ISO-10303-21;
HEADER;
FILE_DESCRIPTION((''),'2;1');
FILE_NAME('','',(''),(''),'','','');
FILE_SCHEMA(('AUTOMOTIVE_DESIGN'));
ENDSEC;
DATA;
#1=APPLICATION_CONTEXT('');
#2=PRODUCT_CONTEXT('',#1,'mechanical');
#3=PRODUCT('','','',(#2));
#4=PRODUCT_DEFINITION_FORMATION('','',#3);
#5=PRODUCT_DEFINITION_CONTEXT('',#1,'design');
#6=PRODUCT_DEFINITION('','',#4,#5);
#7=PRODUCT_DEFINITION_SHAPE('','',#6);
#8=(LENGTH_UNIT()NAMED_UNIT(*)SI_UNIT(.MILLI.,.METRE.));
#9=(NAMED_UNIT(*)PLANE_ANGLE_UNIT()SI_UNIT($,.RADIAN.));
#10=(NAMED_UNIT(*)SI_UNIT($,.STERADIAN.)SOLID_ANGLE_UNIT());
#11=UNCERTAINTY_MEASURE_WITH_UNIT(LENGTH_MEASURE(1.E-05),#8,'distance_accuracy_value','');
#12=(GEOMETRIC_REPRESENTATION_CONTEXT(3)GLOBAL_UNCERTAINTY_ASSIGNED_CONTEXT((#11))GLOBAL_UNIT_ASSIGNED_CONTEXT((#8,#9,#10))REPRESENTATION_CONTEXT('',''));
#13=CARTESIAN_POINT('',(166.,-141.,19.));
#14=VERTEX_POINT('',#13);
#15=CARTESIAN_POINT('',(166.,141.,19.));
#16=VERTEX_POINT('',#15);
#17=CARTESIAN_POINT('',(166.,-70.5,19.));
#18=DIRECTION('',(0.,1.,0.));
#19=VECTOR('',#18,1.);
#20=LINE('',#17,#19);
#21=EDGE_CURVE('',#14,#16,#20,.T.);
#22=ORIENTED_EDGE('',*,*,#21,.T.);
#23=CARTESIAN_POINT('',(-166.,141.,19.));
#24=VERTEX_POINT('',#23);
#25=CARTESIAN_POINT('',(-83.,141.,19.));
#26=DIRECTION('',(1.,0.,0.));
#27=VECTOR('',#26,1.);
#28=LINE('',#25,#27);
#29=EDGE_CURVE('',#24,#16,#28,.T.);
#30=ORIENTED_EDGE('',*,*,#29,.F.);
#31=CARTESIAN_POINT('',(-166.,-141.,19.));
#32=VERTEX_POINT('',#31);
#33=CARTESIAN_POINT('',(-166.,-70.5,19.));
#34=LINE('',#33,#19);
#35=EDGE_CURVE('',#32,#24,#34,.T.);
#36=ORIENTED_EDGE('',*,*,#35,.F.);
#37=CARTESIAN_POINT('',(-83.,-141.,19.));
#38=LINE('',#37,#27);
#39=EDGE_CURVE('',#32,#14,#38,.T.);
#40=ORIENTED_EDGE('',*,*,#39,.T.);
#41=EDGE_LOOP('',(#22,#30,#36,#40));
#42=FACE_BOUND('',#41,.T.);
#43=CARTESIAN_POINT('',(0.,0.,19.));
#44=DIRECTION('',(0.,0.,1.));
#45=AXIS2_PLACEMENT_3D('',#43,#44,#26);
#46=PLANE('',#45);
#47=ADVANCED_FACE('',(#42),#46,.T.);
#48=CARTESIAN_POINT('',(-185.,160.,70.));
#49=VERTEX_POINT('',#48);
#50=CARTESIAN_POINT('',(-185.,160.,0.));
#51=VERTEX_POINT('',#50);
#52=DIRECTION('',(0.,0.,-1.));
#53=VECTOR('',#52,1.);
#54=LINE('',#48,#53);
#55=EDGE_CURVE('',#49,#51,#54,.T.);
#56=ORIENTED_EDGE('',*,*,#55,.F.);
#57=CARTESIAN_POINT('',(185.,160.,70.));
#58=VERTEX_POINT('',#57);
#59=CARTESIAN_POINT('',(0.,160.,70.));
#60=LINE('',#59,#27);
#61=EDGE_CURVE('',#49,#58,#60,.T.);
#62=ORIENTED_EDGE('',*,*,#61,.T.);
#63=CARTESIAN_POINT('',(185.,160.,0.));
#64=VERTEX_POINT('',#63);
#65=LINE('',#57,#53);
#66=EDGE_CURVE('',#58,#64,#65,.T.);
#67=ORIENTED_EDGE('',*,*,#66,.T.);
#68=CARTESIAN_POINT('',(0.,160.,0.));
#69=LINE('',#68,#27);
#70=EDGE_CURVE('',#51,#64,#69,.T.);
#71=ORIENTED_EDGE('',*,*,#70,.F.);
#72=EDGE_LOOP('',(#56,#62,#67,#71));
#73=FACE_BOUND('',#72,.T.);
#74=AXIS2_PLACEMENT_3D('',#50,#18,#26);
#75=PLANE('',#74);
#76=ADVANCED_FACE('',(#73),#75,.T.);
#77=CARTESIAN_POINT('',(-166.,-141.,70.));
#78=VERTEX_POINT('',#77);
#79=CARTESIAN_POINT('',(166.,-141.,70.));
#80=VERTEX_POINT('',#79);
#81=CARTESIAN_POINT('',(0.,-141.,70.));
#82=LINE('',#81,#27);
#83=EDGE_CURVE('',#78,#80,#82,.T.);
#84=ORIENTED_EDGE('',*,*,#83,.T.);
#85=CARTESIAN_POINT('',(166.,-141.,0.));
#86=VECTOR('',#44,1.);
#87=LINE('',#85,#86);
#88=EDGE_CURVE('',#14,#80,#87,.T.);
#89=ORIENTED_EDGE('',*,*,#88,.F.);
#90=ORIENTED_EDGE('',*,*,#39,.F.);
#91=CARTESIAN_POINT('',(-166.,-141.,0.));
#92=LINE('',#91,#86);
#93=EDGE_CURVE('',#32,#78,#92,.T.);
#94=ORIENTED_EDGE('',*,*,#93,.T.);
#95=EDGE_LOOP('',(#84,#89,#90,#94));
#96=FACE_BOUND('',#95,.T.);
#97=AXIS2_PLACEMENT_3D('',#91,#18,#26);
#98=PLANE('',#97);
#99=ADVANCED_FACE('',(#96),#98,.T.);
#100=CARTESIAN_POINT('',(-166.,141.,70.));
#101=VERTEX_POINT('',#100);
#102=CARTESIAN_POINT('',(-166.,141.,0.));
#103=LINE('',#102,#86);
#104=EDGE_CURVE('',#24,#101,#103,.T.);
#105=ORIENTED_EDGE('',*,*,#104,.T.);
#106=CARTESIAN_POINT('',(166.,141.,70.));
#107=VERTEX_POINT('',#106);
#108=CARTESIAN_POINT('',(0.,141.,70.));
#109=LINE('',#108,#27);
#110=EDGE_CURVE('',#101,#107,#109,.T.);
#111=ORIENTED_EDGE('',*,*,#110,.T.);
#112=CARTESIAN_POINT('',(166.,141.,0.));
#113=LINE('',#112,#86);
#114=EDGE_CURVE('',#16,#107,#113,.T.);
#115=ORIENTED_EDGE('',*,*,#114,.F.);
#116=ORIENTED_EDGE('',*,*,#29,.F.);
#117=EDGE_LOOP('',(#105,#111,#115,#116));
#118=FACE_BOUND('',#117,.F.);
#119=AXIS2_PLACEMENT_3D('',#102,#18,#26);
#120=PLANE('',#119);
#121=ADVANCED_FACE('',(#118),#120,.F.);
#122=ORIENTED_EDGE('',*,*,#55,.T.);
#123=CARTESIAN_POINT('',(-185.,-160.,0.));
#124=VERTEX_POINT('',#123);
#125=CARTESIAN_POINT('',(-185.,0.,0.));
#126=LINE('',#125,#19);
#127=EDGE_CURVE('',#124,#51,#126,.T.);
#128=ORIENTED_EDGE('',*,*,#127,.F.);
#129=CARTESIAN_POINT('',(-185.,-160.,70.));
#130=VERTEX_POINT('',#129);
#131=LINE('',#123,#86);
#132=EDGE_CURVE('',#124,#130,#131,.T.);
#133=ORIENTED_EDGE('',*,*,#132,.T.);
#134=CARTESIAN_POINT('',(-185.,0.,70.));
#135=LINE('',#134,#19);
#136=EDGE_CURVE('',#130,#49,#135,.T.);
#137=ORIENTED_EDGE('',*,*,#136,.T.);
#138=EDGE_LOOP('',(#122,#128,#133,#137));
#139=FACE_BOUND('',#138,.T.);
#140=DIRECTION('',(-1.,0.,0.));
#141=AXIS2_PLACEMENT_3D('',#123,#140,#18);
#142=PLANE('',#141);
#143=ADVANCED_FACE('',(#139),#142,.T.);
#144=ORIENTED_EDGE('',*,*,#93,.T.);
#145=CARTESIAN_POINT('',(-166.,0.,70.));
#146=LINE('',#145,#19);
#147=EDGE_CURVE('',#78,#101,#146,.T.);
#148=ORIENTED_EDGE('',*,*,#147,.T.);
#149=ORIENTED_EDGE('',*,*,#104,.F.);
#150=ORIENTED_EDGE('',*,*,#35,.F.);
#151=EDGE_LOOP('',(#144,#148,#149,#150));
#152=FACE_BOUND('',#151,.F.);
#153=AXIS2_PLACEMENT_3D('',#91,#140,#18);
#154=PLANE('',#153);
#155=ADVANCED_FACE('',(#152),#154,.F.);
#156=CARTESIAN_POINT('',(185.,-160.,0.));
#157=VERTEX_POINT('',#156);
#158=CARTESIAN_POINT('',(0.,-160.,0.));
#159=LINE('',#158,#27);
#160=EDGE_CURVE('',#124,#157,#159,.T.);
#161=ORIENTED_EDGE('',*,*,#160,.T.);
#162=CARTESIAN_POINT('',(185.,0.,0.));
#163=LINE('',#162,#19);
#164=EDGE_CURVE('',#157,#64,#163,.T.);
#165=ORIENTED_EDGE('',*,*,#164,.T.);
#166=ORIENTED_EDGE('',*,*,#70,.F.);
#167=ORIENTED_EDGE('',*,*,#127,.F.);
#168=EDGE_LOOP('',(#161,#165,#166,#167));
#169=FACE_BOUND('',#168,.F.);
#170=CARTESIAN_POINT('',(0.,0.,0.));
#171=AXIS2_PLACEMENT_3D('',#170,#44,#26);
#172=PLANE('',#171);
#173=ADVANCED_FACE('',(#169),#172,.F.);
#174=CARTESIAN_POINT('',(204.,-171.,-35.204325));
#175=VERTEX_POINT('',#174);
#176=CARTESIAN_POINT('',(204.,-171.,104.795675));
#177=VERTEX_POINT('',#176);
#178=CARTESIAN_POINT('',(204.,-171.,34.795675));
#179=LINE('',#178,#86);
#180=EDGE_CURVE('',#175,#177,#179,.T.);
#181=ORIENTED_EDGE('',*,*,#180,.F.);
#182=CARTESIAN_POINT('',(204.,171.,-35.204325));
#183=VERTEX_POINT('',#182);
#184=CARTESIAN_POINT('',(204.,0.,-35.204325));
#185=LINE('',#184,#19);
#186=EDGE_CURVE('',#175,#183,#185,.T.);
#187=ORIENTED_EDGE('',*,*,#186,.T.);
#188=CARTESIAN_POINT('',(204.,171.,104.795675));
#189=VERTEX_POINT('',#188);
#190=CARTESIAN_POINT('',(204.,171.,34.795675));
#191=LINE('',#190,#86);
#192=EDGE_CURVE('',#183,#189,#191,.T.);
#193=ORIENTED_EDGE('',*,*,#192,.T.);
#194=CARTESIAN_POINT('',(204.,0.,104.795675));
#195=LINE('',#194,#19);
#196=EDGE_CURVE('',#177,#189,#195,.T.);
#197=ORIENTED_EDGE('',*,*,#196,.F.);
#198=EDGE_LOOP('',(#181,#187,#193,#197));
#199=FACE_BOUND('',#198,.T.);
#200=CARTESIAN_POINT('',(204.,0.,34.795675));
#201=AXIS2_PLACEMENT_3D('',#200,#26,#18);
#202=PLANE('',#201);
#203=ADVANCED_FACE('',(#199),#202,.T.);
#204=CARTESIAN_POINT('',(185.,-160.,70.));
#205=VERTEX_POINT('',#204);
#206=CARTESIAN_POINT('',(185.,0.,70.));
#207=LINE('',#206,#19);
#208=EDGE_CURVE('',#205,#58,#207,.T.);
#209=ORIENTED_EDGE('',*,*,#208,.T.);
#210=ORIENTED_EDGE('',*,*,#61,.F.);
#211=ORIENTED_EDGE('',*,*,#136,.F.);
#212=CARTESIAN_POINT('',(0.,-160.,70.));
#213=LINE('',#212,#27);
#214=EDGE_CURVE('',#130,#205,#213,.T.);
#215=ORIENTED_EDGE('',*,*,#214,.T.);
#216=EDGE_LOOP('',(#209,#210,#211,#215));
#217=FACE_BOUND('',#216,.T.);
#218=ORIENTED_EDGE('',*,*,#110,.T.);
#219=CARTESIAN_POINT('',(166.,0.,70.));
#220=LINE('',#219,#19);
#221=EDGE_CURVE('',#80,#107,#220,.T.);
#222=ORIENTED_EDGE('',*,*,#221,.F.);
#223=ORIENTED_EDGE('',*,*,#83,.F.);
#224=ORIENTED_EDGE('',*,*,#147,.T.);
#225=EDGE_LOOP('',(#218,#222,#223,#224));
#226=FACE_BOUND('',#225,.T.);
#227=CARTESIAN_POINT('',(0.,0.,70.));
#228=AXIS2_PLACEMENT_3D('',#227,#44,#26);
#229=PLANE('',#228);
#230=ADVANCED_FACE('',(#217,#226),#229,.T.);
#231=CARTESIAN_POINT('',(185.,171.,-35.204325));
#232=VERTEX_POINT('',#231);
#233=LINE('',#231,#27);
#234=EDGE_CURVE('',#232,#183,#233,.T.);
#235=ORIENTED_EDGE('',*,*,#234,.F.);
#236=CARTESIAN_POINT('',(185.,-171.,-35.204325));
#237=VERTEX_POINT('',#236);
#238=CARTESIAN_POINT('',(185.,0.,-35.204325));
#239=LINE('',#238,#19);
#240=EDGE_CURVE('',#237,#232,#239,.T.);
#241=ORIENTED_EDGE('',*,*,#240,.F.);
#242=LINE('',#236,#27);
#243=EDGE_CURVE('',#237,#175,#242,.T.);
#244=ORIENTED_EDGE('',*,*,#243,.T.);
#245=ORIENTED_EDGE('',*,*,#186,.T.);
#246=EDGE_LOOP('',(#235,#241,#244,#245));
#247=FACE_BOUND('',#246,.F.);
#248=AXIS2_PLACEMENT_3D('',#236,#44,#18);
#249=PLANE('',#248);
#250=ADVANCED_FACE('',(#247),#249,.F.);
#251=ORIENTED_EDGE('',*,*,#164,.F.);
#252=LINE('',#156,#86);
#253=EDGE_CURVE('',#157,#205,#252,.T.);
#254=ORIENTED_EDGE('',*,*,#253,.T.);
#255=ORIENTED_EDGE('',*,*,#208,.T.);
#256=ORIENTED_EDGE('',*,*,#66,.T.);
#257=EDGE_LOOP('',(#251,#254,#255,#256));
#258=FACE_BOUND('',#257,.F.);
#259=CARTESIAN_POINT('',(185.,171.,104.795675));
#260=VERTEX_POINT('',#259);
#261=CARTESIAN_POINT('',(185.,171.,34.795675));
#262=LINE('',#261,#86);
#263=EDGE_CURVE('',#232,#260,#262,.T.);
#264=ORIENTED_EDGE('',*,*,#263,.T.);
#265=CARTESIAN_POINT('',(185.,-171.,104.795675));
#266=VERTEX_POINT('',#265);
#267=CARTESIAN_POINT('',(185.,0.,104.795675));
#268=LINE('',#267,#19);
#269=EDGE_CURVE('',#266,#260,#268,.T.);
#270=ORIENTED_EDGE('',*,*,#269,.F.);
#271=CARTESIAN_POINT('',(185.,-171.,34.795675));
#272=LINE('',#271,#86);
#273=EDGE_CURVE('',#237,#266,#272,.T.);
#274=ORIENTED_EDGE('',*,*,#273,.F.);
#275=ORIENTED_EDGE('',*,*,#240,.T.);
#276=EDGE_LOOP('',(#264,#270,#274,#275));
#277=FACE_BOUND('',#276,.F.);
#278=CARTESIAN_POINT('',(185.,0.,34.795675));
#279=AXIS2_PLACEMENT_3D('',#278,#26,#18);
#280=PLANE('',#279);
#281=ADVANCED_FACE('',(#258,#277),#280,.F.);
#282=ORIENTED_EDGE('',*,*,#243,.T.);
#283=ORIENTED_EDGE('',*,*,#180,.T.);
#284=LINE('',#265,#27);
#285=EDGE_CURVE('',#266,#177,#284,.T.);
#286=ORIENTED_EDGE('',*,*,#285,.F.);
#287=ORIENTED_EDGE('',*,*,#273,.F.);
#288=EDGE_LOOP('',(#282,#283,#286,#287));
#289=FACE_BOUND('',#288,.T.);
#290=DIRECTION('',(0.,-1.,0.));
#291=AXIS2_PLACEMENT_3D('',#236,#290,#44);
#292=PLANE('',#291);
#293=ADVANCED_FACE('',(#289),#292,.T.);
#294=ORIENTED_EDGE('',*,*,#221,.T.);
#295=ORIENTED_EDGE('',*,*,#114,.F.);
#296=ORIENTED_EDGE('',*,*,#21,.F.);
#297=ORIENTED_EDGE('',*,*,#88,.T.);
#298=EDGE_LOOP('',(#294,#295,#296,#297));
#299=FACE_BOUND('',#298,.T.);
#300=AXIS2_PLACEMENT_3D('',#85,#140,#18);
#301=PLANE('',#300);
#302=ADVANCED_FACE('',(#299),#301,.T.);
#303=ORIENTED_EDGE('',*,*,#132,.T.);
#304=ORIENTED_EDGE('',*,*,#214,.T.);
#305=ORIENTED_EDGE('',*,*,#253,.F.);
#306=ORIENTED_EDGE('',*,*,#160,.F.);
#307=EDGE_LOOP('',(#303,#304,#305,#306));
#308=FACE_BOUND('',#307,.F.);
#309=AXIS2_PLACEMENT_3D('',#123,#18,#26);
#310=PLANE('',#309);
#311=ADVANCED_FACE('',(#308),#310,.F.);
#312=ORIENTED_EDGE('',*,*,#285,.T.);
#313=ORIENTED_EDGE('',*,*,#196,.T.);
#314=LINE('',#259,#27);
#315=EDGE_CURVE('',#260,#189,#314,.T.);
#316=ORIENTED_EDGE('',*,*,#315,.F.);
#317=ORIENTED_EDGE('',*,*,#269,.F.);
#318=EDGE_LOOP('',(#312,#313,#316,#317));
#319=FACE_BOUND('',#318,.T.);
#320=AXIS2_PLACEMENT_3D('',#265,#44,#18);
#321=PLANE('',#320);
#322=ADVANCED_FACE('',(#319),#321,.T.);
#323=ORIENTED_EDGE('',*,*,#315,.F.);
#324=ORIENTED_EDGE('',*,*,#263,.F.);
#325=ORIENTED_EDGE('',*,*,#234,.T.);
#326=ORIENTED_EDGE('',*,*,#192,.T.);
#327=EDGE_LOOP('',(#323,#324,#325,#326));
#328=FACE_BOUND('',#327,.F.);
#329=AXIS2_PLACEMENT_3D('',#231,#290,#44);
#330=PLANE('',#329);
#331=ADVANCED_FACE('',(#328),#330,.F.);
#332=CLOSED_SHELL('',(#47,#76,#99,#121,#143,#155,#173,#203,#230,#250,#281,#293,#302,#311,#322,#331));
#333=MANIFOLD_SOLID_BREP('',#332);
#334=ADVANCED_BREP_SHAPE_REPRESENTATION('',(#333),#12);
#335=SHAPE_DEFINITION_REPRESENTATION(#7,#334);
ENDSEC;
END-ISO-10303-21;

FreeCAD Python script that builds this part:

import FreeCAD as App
import Part
import Sketcher
from FreeCAD import Vector


def add_polygon(sketch, points):
    """Adds a closed chain of lines whose ends are joined by coincident constraints."""
    first, n = sketch.GeometryCount, len(points)
    for a, b in zip(points, points[1:] + points[:1]):
        sketch.addGeometry(Part.LineSegment(App.Vector(*a, 0), App.Vector(*b, 0)), False)
    for i in range(n):
        sketch.addConstraint(Sketcher.Constraint("Coincident", first + i, 2, first + (i + 1) % n, 1))

doc = App.newDocument("Part")
body = doc.addObject("PartDesign::Body", "Body")

# Sketch on XY plane
sketch1 = body.newObject("Sketcher::SketchObject", "Sketch")
sketch1.AttachmentSupport = (doc.getObject("XY_Plane"), [""])
sketch1.MapMode = "FlatFace"
add_polygon(sketch1, [(-185, 160), (-185, -160), (185, -160), (185, 160)])  # lines 0-3
add_polygon(sketch1, [(166, -141), (-166, -141), (-166, 141), (166, 141)])  # lines 4-7
sketch1.addConstraint(Sketcher.Constraint("Vertical", 0))
sketch1.addConstraint(Sketcher.Constraint("Horizontal", 1))
sketch1.addConstraint(Sketcher.Constraint("Vertical", 2))
sketch1.addConstraint(Sketcher.Constraint("Horizontal", 3))
sketch1.addConstraint(Sketcher.Constraint("Horizontal", 4))
sketch1.addConstraint(Sketcher.Constraint("Vertical", 5))
sketch1.addConstraint(Sketcher.Constraint("Horizontal", 6))
sketch1.addConstraint(Sketcher.Constraint("Vertical", 7))
sketch1.addConstraint(Sketcher.Constraint("Symmetric", 0, 2, 2, 2, -1, 1))
sketch1.addConstraint(Sketcher.Constraint("Symmetric", 4, 2, 6, 2, -1, 1))
sketch1.addConstraint(Sketcher.Constraint("DistanceX", 1, 1, 1, 2, 370.0))
sketch1.addConstraint(Sketcher.Constraint("DistanceX", 4, 2, 4, 1, 332.0))
sketch1.addConstraint(Sketcher.Constraint("DistanceY", 0, 2, 0, 1, 320.0))
sketch1.addConstraint(Sketcher.Constraint("DistanceY", 5, 1, 5, 2, 282.0))
pad1 = body.newObject("PartDesign::Pad", "Pad")
pad1.Profile = sketch1
pad1.Length = 70

# Sketch on XY plane
sketch2 = body.newObject("Sketcher::SketchObject", "Sketch001")
sketch2.AttachmentSupport = (doc.getObject("XY_Plane"), [""])
sketch2.MapMode = "FlatFace"
add_polygon(sketch2, [(-185, 160), (-185, -160), (185, -160), (185, 160)])  # lines 0-3
sketch2.addConstraint(Sketcher.Constraint("Vertical", 0))
sketch2.addConstraint(Sketcher.Constraint("Horizontal", 1))
sketch2.addConstraint(Sketcher.Constraint("Vertical", 2))
sketch2.addConstraint(Sketcher.Constraint("Horizontal", 3))
sketch2.addConstraint(Sketcher.Constraint("Symmetric", 0, 2, 2, 2, -1, 1))
sketch2.addConstraint(Sketcher.Constraint("DistanceX", 1, 1, 1, 2, 370.0))
sketch2.addConstraint(Sketcher.Constraint("DistanceY", 0, 2, 0, 1, 320.0))
pad2 = body.newObject("PartDesign::Pad", "Pad001")
pad2.Profile = sketch2
pad2.Length = 19

# Sketch on YZ plane
sketch3 = body.newObject("Sketcher::SketchObject", "Sketch002")
sketch3.AttachmentSupport = (doc.getObject("YZ_Plane"), [""])
sketch3.MapMode = "FlatFace"
sketch3.AttachmentOffset = App.Placement(Vector(0, 0, 185), App.Rotation())
add_polygon(sketch3, [(-171, 105), (-171, -35), (171, -35), (171, 105)])  # lines 0-3
sketch3.addConstraint(Sketcher.Constraint("Vertical", 0))
sketch3.addConstraint(Sketcher.Constraint("Horizontal", 1))
sketch3.addConstraint(Sketcher.Constraint("Vertical", 2))
sketch3.addConstraint(Sketcher.Constraint("Horizontal", 3))
sketch3.addConstraint(Sketcher.Constraint("DistanceX", 1, 1, 1, 2, 342.0))
sketch3.addConstraint(Sketcher.Constraint("DistanceY", 0, 2, 0, 1, 140.0))
sketch3.addConstraint(Sketcher.Constraint("DistanceX", 0, 2, -1, 1, 171.0))
sketch3.addConstraint(Sketcher.Constraint("DistanceY", 0, 2, -1, 1, 35.204325))
pad3 = body.newObject("PartDesign::Pad", "Pad002")
pad3.Profile = sketch3
pad3.Length = 19

doc.recompute()
